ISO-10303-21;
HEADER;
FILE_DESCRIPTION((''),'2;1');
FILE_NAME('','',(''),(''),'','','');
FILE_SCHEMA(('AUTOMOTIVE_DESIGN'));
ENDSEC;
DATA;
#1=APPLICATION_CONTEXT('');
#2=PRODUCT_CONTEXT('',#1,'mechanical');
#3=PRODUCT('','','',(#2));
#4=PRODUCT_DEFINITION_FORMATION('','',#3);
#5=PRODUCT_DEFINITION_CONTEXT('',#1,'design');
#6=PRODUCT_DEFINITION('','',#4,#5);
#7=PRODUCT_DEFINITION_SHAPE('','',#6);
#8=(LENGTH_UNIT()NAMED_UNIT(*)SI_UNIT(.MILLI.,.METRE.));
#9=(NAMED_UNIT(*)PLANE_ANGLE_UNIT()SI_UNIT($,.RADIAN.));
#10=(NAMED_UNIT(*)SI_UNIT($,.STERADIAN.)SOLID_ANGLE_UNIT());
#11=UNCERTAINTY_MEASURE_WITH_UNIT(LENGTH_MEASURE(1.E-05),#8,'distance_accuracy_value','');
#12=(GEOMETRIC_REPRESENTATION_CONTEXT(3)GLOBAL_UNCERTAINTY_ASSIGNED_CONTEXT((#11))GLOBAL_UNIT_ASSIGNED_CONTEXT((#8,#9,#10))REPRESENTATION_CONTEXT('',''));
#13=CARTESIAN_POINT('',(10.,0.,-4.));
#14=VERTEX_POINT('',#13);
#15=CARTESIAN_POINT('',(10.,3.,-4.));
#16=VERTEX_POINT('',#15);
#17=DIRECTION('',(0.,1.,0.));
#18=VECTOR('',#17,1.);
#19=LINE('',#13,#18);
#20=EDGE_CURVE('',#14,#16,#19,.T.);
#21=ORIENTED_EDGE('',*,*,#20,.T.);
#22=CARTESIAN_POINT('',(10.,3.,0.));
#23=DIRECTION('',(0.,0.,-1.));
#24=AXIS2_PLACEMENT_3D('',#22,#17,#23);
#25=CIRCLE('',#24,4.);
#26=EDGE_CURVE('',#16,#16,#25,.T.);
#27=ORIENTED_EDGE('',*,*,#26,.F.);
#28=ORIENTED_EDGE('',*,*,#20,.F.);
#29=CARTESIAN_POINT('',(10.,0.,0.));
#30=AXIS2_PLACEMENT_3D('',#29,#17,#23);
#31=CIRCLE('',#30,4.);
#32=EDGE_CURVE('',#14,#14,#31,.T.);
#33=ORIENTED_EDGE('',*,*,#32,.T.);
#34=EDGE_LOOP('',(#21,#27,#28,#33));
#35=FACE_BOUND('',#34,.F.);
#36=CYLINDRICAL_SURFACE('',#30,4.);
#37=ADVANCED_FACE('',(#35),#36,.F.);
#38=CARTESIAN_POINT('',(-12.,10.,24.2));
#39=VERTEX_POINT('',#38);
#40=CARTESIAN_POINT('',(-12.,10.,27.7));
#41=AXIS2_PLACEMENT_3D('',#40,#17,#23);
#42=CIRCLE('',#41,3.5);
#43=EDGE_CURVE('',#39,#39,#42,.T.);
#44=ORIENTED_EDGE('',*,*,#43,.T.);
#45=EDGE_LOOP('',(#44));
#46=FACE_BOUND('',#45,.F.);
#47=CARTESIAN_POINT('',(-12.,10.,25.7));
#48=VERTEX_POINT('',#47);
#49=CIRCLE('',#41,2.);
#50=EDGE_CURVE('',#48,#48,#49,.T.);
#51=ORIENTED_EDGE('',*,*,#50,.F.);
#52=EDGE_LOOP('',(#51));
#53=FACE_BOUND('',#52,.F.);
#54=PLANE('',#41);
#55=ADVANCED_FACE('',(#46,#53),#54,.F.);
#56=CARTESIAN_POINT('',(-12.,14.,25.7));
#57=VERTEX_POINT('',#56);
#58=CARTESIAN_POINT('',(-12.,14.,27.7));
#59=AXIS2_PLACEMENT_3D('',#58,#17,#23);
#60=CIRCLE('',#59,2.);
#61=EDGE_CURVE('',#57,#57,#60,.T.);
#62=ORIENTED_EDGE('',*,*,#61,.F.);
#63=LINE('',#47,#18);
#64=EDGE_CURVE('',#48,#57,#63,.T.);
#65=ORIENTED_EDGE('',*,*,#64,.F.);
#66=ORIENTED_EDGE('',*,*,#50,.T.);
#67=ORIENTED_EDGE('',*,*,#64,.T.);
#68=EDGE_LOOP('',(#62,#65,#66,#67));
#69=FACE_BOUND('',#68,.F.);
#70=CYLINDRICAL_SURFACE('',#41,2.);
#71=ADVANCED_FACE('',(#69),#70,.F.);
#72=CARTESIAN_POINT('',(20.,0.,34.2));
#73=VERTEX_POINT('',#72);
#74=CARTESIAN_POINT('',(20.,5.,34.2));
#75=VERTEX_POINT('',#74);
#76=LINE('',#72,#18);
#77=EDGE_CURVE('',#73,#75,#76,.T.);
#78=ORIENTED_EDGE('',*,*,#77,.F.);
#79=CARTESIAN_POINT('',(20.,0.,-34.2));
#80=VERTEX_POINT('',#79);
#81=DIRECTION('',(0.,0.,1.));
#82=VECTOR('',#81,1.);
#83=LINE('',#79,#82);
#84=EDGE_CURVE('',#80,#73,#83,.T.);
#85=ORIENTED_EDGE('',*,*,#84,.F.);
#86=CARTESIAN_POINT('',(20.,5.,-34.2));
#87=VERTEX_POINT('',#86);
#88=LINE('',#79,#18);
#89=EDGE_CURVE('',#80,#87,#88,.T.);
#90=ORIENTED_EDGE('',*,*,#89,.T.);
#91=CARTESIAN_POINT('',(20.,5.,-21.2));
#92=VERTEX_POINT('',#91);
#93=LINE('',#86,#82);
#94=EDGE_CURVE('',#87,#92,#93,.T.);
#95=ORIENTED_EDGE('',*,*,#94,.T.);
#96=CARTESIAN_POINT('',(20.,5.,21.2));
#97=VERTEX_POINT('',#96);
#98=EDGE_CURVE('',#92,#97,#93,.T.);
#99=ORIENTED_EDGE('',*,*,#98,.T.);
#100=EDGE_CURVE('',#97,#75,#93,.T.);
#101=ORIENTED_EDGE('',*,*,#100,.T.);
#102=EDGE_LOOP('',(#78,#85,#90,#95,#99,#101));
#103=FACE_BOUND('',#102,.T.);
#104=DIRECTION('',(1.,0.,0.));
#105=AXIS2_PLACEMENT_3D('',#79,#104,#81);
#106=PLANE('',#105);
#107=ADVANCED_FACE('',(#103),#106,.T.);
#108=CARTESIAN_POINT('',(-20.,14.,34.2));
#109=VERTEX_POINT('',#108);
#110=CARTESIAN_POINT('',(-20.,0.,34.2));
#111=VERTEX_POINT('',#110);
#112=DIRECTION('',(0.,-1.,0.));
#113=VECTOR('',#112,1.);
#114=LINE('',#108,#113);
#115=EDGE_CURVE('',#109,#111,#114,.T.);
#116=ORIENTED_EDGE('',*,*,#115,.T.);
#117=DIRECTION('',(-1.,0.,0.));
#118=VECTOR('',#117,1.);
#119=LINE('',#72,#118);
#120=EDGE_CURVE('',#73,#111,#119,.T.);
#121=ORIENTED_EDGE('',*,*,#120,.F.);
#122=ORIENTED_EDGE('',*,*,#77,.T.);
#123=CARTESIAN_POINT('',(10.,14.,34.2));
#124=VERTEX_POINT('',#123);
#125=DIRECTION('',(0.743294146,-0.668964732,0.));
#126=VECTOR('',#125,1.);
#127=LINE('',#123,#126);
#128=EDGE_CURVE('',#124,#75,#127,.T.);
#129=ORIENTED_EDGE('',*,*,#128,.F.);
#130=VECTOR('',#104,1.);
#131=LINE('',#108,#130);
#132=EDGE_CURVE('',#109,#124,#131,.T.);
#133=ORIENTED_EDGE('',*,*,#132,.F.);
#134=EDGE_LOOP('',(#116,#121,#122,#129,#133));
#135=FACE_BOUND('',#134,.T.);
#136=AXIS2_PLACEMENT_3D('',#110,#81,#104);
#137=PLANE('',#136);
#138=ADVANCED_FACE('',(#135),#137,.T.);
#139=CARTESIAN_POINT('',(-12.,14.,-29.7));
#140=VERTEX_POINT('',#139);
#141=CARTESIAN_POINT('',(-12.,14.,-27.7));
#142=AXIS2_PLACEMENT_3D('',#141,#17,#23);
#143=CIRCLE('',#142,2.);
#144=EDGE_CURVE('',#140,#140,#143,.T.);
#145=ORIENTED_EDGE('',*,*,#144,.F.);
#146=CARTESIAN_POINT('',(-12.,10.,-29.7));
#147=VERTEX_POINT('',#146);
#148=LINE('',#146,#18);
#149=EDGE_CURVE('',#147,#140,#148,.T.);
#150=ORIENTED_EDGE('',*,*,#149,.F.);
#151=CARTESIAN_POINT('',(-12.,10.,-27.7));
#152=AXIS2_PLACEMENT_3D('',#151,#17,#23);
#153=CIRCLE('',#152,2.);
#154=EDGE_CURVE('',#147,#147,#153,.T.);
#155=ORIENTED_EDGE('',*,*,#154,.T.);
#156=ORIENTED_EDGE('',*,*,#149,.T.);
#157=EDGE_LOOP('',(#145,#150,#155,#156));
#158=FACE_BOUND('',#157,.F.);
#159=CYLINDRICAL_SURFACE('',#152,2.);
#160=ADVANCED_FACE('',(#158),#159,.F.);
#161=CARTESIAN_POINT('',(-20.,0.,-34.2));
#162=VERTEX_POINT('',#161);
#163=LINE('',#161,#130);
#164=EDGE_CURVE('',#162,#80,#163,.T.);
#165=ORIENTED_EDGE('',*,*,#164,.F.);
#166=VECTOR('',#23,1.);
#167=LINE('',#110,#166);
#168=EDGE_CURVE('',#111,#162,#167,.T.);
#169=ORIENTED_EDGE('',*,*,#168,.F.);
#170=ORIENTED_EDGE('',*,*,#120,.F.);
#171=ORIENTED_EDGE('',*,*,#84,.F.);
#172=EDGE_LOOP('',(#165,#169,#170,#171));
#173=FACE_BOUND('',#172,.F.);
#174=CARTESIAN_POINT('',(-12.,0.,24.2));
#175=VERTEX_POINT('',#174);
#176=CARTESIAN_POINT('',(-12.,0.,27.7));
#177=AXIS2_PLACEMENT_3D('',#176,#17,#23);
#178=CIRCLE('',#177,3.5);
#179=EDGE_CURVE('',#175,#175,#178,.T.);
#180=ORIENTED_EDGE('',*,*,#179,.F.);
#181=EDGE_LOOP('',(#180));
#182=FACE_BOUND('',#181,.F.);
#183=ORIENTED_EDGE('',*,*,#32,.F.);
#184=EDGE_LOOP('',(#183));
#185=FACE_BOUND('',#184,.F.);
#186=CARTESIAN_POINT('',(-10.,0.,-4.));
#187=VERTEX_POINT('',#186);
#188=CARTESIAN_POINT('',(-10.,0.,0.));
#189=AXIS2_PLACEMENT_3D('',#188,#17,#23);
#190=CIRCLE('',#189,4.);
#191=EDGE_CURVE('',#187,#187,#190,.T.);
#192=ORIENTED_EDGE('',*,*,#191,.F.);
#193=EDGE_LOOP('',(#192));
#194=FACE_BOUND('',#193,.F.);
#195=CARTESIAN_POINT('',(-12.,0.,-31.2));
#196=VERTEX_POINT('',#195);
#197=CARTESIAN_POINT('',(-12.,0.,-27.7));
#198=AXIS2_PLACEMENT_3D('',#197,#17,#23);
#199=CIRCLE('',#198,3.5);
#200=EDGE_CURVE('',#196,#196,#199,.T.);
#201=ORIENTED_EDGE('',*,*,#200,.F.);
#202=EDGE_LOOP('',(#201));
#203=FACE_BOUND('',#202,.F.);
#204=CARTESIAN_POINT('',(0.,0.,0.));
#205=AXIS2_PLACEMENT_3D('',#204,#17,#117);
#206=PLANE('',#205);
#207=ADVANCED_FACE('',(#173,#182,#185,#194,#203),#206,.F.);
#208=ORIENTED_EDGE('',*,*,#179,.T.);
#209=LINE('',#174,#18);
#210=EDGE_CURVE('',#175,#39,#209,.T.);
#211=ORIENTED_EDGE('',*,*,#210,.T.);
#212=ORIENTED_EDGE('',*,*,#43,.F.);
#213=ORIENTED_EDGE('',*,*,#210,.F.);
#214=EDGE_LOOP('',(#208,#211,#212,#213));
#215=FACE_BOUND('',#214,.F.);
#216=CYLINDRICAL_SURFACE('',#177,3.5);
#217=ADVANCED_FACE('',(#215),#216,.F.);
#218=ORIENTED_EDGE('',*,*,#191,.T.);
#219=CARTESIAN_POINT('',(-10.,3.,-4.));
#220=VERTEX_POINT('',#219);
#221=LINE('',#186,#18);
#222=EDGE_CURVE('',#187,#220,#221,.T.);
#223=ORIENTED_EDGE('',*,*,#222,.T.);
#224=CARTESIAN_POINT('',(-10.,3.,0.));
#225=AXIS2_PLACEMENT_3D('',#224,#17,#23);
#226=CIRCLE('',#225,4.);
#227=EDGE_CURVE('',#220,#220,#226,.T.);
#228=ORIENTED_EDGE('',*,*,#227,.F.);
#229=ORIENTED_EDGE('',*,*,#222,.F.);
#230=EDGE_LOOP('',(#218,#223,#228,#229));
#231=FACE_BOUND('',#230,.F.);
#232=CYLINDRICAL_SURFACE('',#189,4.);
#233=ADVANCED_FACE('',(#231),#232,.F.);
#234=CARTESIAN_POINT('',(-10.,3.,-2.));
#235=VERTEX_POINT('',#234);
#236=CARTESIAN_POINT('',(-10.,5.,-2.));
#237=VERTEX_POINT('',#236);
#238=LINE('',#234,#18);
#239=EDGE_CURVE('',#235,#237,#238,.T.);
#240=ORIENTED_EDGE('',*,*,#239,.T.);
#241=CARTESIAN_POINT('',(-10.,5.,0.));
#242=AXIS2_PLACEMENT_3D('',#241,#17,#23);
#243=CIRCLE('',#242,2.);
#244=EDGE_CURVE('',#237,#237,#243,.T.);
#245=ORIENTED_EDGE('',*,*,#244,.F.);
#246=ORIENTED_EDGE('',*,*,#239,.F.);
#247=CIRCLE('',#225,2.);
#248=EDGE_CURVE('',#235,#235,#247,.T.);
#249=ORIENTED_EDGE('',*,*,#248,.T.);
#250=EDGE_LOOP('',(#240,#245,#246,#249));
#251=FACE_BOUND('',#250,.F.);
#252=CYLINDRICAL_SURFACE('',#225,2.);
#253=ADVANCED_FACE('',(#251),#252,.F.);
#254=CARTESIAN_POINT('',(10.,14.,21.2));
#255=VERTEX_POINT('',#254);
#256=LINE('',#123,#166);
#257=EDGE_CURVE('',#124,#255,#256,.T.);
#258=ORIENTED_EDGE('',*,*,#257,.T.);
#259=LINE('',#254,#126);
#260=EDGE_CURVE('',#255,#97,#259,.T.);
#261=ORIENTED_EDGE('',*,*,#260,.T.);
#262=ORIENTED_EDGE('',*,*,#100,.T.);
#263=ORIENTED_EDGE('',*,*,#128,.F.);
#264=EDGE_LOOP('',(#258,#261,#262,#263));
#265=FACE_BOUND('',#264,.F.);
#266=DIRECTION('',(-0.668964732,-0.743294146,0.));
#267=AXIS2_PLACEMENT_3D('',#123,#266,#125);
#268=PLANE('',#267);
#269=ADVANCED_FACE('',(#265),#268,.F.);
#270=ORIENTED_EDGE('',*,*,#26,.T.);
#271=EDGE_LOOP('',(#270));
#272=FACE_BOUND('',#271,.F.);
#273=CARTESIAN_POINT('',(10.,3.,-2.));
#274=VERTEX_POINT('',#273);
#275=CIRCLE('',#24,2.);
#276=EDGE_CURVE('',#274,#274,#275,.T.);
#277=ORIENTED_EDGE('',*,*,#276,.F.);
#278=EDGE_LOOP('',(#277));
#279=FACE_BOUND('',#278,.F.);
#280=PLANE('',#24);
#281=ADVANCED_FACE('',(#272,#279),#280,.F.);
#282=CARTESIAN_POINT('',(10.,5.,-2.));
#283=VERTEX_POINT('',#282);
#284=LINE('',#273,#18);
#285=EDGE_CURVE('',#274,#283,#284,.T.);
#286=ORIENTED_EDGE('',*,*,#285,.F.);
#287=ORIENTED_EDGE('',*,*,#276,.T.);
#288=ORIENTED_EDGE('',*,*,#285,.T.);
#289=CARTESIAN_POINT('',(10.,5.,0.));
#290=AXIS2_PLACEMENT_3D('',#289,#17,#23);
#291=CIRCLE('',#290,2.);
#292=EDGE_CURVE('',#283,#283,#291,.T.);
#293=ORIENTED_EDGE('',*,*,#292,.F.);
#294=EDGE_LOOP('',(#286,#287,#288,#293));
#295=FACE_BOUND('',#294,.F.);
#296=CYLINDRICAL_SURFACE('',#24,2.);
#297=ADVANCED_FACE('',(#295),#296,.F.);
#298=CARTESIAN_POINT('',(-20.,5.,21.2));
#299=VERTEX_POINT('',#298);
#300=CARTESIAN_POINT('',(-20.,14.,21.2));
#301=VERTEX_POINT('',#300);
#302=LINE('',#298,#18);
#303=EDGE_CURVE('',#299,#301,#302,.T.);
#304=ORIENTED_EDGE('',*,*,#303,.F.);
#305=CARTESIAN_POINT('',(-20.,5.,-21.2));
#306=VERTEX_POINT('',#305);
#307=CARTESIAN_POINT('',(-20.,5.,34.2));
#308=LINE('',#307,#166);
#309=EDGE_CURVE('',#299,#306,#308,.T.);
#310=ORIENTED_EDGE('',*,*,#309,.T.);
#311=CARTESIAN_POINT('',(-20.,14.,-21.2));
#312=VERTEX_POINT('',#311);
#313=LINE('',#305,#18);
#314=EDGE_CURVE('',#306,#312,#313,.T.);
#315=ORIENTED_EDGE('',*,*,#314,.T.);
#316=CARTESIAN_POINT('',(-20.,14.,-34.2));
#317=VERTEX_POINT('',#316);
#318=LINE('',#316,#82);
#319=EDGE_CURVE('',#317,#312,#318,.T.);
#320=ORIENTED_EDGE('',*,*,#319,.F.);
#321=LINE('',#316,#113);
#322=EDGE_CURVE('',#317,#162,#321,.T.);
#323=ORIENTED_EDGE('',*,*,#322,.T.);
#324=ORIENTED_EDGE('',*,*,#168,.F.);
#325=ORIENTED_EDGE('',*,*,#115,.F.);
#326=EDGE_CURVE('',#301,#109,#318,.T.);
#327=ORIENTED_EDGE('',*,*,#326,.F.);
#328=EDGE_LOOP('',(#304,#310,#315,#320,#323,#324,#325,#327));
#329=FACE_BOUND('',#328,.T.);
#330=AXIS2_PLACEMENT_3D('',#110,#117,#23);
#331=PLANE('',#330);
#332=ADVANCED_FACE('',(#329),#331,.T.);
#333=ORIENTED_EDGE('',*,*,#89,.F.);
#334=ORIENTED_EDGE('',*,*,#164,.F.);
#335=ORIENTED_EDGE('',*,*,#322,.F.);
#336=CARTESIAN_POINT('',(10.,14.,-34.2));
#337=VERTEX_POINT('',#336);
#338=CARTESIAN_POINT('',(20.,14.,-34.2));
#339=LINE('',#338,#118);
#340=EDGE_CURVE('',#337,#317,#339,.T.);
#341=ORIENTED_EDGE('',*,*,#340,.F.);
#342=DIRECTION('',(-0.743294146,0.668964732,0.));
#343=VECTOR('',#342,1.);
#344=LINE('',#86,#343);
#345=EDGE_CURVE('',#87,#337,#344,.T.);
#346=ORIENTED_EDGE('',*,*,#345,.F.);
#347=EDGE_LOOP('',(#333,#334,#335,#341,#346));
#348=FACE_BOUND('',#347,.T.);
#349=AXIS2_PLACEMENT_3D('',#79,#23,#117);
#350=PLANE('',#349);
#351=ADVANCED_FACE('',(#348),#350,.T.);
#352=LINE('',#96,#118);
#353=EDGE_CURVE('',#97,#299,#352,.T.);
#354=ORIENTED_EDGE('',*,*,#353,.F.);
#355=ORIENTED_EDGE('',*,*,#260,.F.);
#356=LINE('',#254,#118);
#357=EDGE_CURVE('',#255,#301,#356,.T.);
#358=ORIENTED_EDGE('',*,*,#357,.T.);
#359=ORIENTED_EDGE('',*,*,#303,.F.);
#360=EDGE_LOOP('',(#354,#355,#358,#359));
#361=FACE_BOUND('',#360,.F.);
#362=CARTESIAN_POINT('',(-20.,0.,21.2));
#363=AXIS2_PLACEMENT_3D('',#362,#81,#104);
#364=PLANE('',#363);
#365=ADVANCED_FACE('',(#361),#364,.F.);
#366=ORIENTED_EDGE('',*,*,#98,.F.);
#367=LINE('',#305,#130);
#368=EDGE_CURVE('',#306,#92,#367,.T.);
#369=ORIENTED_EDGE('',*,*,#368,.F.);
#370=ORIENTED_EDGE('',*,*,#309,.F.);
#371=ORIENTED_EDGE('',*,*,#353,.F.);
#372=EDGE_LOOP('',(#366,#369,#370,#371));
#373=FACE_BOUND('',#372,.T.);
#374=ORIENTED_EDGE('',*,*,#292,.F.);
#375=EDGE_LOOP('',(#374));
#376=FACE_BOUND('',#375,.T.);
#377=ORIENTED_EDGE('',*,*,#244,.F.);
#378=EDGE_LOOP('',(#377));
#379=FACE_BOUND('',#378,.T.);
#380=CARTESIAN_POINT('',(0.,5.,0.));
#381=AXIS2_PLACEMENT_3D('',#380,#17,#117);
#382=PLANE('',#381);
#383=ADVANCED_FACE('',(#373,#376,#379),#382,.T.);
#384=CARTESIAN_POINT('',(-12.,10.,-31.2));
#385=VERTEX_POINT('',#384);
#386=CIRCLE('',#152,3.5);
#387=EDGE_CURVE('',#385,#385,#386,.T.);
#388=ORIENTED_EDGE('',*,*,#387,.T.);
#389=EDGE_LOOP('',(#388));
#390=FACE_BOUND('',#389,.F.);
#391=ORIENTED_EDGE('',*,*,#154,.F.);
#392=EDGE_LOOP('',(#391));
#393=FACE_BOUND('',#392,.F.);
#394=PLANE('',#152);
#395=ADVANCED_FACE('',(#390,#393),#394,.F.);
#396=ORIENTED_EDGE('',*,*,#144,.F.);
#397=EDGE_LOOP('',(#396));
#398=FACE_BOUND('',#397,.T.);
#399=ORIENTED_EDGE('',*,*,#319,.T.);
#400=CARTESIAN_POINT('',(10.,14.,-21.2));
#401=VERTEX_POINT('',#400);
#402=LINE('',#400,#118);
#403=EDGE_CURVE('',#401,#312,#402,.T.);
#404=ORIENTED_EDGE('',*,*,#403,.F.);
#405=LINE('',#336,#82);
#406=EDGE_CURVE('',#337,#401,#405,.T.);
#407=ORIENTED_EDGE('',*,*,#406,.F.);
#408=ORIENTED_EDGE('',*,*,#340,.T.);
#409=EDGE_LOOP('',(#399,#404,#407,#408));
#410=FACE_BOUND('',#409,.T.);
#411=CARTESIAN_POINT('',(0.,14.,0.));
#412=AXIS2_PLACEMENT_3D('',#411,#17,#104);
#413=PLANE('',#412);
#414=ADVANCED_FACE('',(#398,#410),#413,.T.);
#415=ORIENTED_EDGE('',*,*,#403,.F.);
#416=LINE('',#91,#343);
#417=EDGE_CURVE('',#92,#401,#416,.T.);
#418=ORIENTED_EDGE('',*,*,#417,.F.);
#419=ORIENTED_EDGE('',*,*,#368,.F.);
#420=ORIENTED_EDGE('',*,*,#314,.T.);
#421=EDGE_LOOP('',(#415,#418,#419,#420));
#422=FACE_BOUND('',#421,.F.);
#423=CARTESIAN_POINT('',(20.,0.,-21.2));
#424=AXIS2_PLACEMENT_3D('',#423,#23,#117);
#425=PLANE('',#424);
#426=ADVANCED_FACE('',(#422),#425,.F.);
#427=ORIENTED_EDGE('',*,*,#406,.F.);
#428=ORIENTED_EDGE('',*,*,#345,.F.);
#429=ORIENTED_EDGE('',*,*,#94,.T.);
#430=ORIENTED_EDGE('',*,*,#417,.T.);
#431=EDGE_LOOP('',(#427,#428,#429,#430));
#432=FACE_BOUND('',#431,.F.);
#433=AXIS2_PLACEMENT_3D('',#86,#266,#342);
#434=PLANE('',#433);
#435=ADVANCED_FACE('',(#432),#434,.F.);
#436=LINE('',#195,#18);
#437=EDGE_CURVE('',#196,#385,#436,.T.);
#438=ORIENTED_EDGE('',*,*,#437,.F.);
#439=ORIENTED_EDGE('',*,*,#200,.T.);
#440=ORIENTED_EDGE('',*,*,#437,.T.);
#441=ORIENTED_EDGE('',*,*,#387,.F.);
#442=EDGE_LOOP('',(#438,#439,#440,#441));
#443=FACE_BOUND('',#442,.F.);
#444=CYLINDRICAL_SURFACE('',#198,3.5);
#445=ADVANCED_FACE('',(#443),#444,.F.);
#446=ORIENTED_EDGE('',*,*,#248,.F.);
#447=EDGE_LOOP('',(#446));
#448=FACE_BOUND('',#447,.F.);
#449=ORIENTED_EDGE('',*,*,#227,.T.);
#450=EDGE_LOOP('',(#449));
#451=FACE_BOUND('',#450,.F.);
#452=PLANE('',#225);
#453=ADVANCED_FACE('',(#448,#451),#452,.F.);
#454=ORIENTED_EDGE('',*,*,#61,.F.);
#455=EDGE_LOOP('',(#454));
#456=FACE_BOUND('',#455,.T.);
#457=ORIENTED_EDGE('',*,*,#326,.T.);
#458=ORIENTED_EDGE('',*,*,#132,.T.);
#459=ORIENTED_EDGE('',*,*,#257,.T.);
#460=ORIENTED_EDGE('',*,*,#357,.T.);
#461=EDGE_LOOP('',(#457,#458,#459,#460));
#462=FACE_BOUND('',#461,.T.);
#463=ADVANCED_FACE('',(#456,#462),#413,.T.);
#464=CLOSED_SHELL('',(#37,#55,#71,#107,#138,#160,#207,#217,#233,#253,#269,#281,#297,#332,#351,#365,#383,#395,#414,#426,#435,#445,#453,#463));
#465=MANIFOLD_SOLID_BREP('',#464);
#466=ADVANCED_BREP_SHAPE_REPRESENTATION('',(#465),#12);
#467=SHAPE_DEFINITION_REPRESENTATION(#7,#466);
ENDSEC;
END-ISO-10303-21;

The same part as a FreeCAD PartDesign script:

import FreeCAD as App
import Part
import Sketcher

V = App.Vector


def add_polygon(sketch, points):
    """Adds a closed chain of lines whose ends are joined by coincident constraints."""
    first, n = sketch.GeometryCount, len(points)
    for a, b in zip(points, points[1:] + points[:1]):
        sketch.addGeometry(Part.LineSegment(App.Vector(*a, 0), App.Vector(*b, 0)), False)
    for i in range(n):
        sketch.addConstraint(Sketcher.Constraint("Coincident", first + i, 2, first + (i + 1) % n, 1))

doc = App.newDocument("Part")
body = doc.addObject("PartDesign::Body", "Body")

# Sketch on XZ plane
sketch1 = body.newObject("Sketcher::SketchObject", "Sketch")
sketch1.AttachmentSupport = (doc.getObject("XZ_Plane"), [""])
sketch1.MapMode = "FlatFace"
add_polygon(sketch1, [(-20, 34), (20, 34), (20, -34), (-20, -34)])  # lines 0-3
sketch1.addConstraint([
    Sketcher.Constraint("Horizontal", 0),
    Sketcher.Constraint("Vertical", 1),
    Sketcher.Constraint("Horizontal", 2),
    Sketcher.Constraint("Vertical", 3),
    Sketcher.Constraint("Symmetric", 0, 2, 2, 2, -1, 1),
    Sketcher.Constraint("DistanceX", 0, 1, 0, 2, 40.0),
    Sketcher.Constraint("DistanceY", 1, 2, 1, 1, 68.4),
])
pad1 = body.newObject("PartDesign::Pad", "Pad")
pad1.Profile = sketch1
pad1.Length = 5
pad1.Reversed = True

# Sketch on XZ plane
sketch2 = body.newObject("Sketcher::SketchObject", "Sketch001")
sketch2.AttachmentSupport = (doc.getObject("XZ_Plane"), [""])
sketch2.MapMode = "FlatFace"
sketch2.addGeometry([
    Part.Circle(V(-10, 0, 0), V(0, 0, 1), 2),
    Part.Circle(V(10, 0, 0), V(0, 0, 1), 2),
], False)
sketch2.addConstraint([
    Sketcher.Constraint("Equal", 0, 1),
    Sketcher.Constraint("Symmetric", 0, 3, 1, 3, -1, 1),
    Sketcher.Constraint("PointOnObject", 0, 3, -1),
    Sketcher.Constraint("Diameter", 0, 4.0),
    Sketcher.Constraint("DistanceX", 0, 3, -1, 1, 10.0),
])
doc.recompute()
hole = body.newObject("PartDesign::Hole", "Hole")
hole.Profile = sketch2
hole.ThreadType = "None"
hole.Diameter = 4
hole.DepthType = "ThroughAll"
hole.HoleCutType = "Counterbore"
hole.HoleCutDiameter = 8
hole.HoleCutDepth = 3

# Sketch on XZ plane
sketch3 = body.newObject("Sketcher::SketchObject", "Sketch002")
sketch3.AttachmentSupport = (doc.getObject("XZ_Plane"), [""])
sketch3.MapMode = "FlatFace"
sketch3.AttachmentOffset = App.Placement(V(0, 0, -5), App.Rotation())
add_polygon(sketch3, [(-20, -34), (-20, -21), (10, -21), (10, -34)])  # lines 0-3
add_polygon(sketch3, [(10, 21), (-20, 21), (-20, 34), (10, 34)])  # lines 4-7
sketch3.addConstraint([
    Sketcher.Constraint("Vertical", 0),
    Sketcher.Constraint("Horizontal", 1),
    Sketcher.Constraint("Vertical", 2),
    Sketcher.Constraint("Horizontal", 3),
    Sketcher.Constraint("Horizontal", 4),
    Sketcher.Constraint("Vertical", 5),
    Sketcher.Constraint("Horizontal", 6),
    Sketcher.Constraint("Vertical", 7),
    Sketcher.Constraint("Symmetric", 0, 2, 4, 2, -1),
    Sketcher.Constraint("Symmetric", 2, 2, 6, 2, -1),
    Sketcher.Constraint("DistanceX", 1, 1, 1, 2, 30.0),
    Sketcher.Constraint("DistanceY", 0, 1, 0, 2, 13.0),
    Sketcher.Constraint("DistanceX", 0, 2, -1, 1, 20.0),
    Sketcher.Constraint("DistanceY", 0, 2, -1, 1, 21.2),
])
pad2 = body.newObject("PartDesign::Pad", "Pad001")
pad2.Profile = sketch3
pad2.Length = 9
pad2.Reversed = True

# Sketch on XZ plane
sketch4 = body.newObject("Sketcher::SketchObject", "Sketch003")
sketch4.AttachmentSupport = (doc.getObject("XZ_Plane"), [""])
sketch4.MapMode = "FlatFace"
sketch4.addGeometry([
    Part.Circle(V(-12, 27.7, 0), V(0, 0, 1), 2),
    Part.Circle(V(-12, -27.7, 0), V(0, 0, 1), 2),
], False)
sketch4.addConstraint([
    Sketcher.Constraint("Equal", 0, 1),
    Sketcher.Constraint("Symmetric", 0, 3, 1, 3, -1),
    Sketcher.Constraint("Diameter", 0, 4.0),
    Sketcher.Constraint("DistanceX", 0, 3, -1, 1, 12.0),
    Sketcher.Constraint("DistanceY", -1, 1, 0, 3, 27.7),
])
doc.recompute()
hole2 = body.newObject("PartDesign::Hole", "Hole001")
hole2.Profile = sketch4
hole2.ThreadType = "None"
hole2.Diameter = 4
hole2.DepthType = "ThroughAll"
hole2.HoleCutType = "Counterbore"
hole2.HoleCutDiameter = 7
hole2.HoleCutDepth = 10

# Sketch on XY plane
sketch5 = body.newObject("Sketcher::SketchObject", "Sketch004")
sketch5.AttachmentSupport = (doc.getObject("XY_Plane"), [""])
sketch5.MapMode = "FlatFace"
sketch5.AttachmentOffset = App.Placement(V(0, 0, -34.2), App.Rotation())
add_polygon(sketch5, [(10, 14), (20, 5), (10, 5)])  # lines 0-2
sketch5.addConstraint([
    Sketcher.Constraint("Horizontal", 1),
    Sketcher.Constraint("Vertical", 2),
    Sketcher.Constraint("DistanceX", 1, 2, 1, 1, 10.0),
    Sketcher.Constraint("DistanceY", 2, 1, 2, 2, 9.0),
    Sketcher.Constraint("DistanceX", -1, 1, 0, 2, 20.0),
    Sketcher.Constraint("DistanceY", -1, 1, 0, 2, 5.0),
])
pad3 = body.newObject("PartDesign::Pad", "Pad002")
pad3.Profile = sketch5
pad3.Length = 13

# Sketch on XY plane
sketch6 = body.newObject("Sketcher::SketchObject", "Sketch005")
sketch6.AttachmentSupport = (doc.getObject("XY_Plane"), [""])
sketch6.MapMode = "FlatFace"
sketch6.AttachmentOffset = App.Placement(V(0, 0, 34.2), App.Rotation())
add_polygon(sketch6, [(10, 14), (10, 5), (20, 5)])  # lines 0-2
sketch6.addConstraint([
    Sketcher.Constraint("Vertical", 0),
    Sketcher.Constraint("Horizontal", 1),
    Sketcher.Constraint("DistanceX", 1, 1, 1, 2, 10.0),
    Sketcher.Constraint("DistanceY", 0, 2, 0, 1, 9.0),
    Sketcher.Constraint("DistanceX", -1, 1, 0, 2, 10.0),
    Sketcher.Constraint("DistanceY", -1, 1, 0, 2, 5.0),
])
pad4 = body.newObject("PartDesign::Pad", "Pad003")
pad4.Profile = sketch6
pad4.Length = 13
pad4.Reversed = True

doc.recompute()
